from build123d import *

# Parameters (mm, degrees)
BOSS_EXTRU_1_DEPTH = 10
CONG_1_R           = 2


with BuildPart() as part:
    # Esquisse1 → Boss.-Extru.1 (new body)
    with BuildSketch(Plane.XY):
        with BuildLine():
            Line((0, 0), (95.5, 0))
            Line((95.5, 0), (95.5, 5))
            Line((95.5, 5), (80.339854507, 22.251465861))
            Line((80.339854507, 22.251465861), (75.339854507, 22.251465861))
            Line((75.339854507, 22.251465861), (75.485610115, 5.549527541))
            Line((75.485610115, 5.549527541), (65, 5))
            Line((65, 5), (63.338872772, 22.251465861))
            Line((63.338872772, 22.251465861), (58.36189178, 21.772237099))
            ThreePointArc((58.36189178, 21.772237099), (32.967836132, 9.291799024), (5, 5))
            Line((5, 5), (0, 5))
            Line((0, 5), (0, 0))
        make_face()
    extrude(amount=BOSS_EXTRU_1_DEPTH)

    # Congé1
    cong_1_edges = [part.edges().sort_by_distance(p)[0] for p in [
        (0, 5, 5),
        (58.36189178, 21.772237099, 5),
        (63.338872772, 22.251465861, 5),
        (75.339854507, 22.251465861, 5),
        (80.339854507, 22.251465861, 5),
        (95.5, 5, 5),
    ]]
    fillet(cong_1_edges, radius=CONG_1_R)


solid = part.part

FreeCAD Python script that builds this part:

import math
import FreeCAD as App
import Part
import Sketcher

V = App.Vector
Q = App.Units.Quantity


def edges_at(feature, points):
    """Names of the edges that pass closest to the given points."""
    edges = feature.Shape.Edges
    near = lambda p: min(range(len(edges)), key=lambda i: edges[i].distToShape(Part.Vertex(*p))[0])
    return sorted({f"Edge{near(p) + 1}" for p in points})

doc = App.newDocument("Part")
body = doc.addObject("PartDesign::Body", "Body")

# Sketch on XY plane
sketch1 = body.newObject("Sketcher::SketchObject", "Sketch")
sketch1.AttachmentSupport = (doc.getObject("XY_Plane"), [""])
sketch1.MapMode = "FlatFace"
sketch1.addGeometry([
    Part.LineSegment(V(0, 0, 0), V(95.5, 0, 0)),  # 0
    Part.LineSegment(V(95.5, 0, 0), V(95.5, 5, 0)),  # 1
    Part.LineSegment(V(95.5, 5, 0), V(80.339855, 22.251466, 0)),  # 2
    Part.LineSegment(V(80.339855, 22.251466, 0), V(75.339855, 22.251466, 0)),  # 3
    Part.LineSegment(V(75.339855, 22.251466, 0), V(75.48561, 5.549528, 0)),  # 4
    Part.LineSegment(V(75.48561, 5.549528, 0), V(65, 5, 0)),  # 5
    Part.LineSegment(V(65, 5, 0), V(63.338873, 22.251466, 0)),  # 6
    Part.LineSegment(V(63.338873, 22.251466, 0), V(58.361892, 21.772237, 0)),  # 7
    Part.ArcOfCircle(Part.Circle(V(5, 98.27317, 0), V(0, 0, 1), 93.27317), math.radians(-90), math.radians(-55.102971)),  # 8
    Part.LineSegment(V(5, 5, 0), V(0, 5, 0)),  # 9
    Part.LineSegment(V(0, 5, 0), V(0, 0, 0)),  # 10
], False)
sketch1.addConstraint([
    Sketcher.Constraint("Coincident", 0, 2, 1, 1),
    Sketcher.Constraint("Coincident", 1, 2, 2, 1),
    Sketcher.Constraint("Coincident", 2, 2, 3, 1),
    Sketcher.Constraint("Coincident", 3, 2, 4, 1),
    Sketcher.Constraint("Coincident", 4, 2, 5, 1),
    Sketcher.Constraint("Coincident", 5, 2, 6, 1),
    Sketcher.Constraint("Coincident", 6, 2, 7, 1),
    Sketcher.Constraint("Coincident", 7, 2, 8, 2),
    Sketcher.Constraint("Tangent", 8, 1, 9, 1),
    Sketcher.Constraint("Coincident", 9, 2, 10, 1),
    Sketcher.Constraint("Coincident", 10, 2, 0, 1),
    Sketcher.Constraint("Horizontal", 0),
    Sketcher.Constraint("Vertical", 1),
    Sketcher.Constraint("Horizontal", 3),
    Sketcher.Constraint("Horizontal", 9),
    Sketcher.Constraint("Vertical", 10),
    Sketcher.Constraint("Coincident", 10, 2, -1, 1),
    Sketcher.Constraint("Perpendicular", 6, 7),
    Sketcher.Constraint("Horizontal", 1, 2, 5, 2),
    Sketcher.Constraint("Horizontal", 3, 2, 6, 2),
    Sketcher.Constraint("Horizontal", 5, 2, 8, 1),
    Sketcher.Constraint("Equal", 3, 9),
    Sketcher.Constraint("Equal", 9, 1),
    Sketcher.Constraint("DistanceX", 3, 2, 3, 1, Q("5 mm")),
    Sketcher.Constraint("Angle", 5, Q("-177 deg")),
    Sketcher.Constraint("Distance", 7, Q("5 mm")),
    Sketcher.Constraint("DistanceX", 0, 1, 0, 2, Q("95.5 mm")),
    Sketcher.Constraint("DistanceX", -1, 1, 5, 2, Q("65 mm")),
    Sketcher.Constraint("Angle", 4, Q("-89.5 deg")),
    Sketcher.Constraint("Angle", 6, Q("95.5 deg")),
    Sketcher.Constraint("Distance", 5, Q("10.5 mm")),
    Sketcher.Constraint("Radius", 8, Q("93.27317 mm")),
])
pad1 = body.newObject("PartDesign::Pad", "Pad")
pad1.Profile = sketch1
pad1.Length = 10
doc.recompute()

fillet = body.newObject("PartDesign::Fillet", "Fillet")
fillet.Base = (pad1, edges_at(pad1, [
    (0, 5, 5),
    (58.362, 21.772, 5),
    (63.339, 22.251, 5),
    (75.34, 22.251, 5),
    (80.34, 22.251, 5),
    (95.5, 5, 5),
]))
fillet.Radius = 2

doc.recompute()
